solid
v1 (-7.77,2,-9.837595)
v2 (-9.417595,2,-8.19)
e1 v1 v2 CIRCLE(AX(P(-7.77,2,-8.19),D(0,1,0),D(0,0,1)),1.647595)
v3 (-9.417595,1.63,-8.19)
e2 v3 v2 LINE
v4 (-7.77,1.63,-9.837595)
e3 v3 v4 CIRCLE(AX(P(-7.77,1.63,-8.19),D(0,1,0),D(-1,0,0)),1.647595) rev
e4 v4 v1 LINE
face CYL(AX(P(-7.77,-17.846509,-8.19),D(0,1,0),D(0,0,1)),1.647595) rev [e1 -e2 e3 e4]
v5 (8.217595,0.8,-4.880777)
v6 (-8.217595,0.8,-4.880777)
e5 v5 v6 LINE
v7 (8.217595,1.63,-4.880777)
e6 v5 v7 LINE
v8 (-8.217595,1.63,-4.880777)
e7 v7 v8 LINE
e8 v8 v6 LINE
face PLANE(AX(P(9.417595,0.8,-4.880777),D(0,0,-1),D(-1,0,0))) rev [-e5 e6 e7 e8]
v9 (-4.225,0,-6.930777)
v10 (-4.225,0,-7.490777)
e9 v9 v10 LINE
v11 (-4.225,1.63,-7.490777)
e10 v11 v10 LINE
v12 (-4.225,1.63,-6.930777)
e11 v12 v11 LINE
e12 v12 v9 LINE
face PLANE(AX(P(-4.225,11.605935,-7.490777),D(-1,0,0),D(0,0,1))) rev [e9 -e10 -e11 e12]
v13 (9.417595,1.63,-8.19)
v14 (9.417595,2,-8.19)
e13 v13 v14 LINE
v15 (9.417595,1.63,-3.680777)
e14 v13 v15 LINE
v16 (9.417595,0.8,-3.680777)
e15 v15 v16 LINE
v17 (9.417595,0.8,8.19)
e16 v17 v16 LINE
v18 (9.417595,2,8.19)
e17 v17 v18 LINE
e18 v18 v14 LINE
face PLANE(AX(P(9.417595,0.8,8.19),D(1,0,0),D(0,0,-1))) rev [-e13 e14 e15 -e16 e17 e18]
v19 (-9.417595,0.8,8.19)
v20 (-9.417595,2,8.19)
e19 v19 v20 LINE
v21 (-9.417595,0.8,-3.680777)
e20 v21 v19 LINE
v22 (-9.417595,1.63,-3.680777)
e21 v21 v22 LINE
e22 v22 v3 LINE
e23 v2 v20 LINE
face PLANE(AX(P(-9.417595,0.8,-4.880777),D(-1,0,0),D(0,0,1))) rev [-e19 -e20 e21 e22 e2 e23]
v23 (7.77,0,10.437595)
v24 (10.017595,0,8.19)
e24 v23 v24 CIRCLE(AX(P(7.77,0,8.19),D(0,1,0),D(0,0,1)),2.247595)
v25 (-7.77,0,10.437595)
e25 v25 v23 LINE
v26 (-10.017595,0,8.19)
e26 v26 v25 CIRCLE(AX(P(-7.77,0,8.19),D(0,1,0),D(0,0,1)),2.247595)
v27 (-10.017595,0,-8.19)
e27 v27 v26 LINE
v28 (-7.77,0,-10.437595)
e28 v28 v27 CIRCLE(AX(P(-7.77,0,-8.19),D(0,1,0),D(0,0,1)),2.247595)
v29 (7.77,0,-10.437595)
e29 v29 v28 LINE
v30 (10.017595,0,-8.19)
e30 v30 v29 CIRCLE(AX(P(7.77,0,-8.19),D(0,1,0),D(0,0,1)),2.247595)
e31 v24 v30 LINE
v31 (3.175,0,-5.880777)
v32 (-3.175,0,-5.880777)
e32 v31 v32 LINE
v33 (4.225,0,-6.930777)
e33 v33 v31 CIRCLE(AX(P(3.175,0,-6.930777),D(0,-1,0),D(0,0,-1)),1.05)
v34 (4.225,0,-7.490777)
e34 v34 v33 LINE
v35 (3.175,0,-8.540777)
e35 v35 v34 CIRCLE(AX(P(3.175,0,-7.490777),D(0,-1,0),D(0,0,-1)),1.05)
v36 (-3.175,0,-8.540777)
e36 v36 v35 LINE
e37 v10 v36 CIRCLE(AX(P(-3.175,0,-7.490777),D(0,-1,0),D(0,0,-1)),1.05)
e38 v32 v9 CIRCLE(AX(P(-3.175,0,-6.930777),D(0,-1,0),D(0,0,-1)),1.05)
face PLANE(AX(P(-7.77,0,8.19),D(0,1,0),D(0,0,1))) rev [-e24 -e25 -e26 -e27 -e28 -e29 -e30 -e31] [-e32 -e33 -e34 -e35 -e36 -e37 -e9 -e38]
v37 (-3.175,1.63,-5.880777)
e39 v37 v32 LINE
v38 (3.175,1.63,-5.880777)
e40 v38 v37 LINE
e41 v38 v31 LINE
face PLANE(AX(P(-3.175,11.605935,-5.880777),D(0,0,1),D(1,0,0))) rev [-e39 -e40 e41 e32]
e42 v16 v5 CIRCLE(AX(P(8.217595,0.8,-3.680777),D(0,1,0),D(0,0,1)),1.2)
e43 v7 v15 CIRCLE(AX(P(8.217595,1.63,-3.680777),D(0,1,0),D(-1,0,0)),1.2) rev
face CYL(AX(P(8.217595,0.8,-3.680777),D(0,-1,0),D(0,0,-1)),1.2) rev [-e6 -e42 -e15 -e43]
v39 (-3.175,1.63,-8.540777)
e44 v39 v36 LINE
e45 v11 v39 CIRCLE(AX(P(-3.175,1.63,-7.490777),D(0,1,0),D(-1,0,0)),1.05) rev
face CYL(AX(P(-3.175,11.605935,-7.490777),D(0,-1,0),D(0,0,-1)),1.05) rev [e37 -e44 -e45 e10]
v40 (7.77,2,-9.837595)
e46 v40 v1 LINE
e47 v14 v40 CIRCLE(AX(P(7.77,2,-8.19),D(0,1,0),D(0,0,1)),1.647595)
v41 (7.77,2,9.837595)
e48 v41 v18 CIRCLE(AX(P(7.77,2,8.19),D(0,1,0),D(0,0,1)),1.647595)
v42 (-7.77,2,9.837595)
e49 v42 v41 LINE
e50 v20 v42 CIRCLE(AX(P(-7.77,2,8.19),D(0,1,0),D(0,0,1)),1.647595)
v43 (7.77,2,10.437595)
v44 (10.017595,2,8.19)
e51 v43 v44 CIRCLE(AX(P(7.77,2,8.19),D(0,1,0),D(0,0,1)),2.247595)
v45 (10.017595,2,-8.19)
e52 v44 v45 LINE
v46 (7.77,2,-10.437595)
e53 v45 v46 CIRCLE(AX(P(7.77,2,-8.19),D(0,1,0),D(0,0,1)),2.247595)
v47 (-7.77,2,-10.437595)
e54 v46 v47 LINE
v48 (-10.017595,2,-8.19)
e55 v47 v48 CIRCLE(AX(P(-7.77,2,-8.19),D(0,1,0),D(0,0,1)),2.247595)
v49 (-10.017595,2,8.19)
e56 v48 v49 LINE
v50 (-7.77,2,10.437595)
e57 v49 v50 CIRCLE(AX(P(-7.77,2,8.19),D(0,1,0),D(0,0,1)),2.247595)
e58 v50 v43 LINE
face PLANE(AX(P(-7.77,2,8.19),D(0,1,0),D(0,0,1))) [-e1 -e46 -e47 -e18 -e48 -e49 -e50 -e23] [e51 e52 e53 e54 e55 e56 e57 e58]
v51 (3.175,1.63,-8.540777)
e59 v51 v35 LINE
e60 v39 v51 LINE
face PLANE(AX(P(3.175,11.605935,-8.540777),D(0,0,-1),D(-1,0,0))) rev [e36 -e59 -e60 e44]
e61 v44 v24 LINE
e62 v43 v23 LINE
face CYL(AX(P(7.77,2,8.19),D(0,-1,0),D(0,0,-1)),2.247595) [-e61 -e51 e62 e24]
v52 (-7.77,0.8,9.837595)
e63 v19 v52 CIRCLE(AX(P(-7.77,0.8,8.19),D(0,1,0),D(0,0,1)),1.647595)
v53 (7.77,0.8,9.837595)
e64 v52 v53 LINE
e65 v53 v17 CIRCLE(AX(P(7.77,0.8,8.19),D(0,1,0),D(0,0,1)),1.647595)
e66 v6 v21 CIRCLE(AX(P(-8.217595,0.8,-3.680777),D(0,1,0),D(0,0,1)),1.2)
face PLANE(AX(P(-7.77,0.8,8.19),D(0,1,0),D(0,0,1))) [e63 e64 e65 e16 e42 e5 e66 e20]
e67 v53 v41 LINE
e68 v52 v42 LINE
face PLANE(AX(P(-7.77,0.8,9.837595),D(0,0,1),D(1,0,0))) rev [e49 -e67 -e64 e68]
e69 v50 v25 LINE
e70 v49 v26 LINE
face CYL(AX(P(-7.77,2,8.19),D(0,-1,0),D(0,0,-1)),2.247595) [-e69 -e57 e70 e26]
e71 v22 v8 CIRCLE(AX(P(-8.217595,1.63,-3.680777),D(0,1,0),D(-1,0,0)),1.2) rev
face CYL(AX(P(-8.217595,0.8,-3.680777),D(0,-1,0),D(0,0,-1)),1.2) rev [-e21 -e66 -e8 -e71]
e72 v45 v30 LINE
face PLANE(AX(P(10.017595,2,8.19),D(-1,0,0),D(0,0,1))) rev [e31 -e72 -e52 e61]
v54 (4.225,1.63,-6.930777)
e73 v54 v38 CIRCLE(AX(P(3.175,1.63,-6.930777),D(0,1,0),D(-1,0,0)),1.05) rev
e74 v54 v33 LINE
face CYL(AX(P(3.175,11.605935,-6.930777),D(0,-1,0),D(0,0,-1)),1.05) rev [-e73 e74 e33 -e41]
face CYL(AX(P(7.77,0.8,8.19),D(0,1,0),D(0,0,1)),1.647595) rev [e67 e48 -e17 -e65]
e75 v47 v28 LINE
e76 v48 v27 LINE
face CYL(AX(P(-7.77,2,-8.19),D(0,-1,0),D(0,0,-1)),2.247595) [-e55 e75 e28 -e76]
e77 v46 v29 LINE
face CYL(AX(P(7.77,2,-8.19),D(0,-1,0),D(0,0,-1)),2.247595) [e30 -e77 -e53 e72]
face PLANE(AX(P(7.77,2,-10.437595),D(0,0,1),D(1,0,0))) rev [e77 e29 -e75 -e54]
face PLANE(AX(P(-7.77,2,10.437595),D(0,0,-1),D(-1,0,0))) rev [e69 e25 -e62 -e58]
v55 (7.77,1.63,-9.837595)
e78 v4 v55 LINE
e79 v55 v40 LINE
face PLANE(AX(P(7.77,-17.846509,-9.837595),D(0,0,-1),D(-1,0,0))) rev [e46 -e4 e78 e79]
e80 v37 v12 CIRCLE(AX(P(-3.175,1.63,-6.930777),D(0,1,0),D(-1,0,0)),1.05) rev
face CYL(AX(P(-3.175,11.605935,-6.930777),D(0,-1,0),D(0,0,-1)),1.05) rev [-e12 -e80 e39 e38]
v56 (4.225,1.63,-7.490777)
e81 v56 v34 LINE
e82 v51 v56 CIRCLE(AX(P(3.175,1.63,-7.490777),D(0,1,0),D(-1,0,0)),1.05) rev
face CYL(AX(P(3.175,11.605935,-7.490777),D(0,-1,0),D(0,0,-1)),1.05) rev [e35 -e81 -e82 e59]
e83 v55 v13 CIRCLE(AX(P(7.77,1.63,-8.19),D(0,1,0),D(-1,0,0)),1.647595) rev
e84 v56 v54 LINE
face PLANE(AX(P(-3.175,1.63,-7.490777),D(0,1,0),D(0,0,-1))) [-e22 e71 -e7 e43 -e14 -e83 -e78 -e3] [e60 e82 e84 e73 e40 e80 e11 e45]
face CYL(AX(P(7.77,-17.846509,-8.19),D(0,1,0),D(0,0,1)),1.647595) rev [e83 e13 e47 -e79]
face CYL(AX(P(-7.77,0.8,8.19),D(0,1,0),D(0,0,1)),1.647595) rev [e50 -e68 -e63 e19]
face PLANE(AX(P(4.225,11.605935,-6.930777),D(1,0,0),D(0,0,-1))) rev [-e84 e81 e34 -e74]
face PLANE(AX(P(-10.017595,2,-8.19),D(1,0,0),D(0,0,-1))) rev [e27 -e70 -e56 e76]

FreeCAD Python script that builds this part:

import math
import FreeCAD as App
import Part
import Sketcher
from FreeCAD import Vector
Q = App.Units.Quantity


def edges_at(feature, points):
    """Names of the edges that pass closest to the given points."""
    edges = feature.Shape.Edges
    near = lambda p: min(range(len(edges)), key=lambda i: edges[i].distToShape(Part.Vertex(*p))[0])
    return sorted({f"Edge{near(p) + 1}" for p in points})

doc = App.newDocument("Part")
body = doc.addObject("PartDesign::Body", "Body")

# Sketch on XZ plane
sketch1 = doc.addObject("Sketcher::SketchObject", "Sketch")
body.addObject(sketch1)
sketch1.AttachmentSupport = (doc.XZ_Plane, [""])
sketch1.MapMode = "FlatFace"
sketch1.addGeometry(Part.LineSegment(Vector(-7.8, 10.4, 0), Vector(7.8, 10.4, 0)), False)
sketch1.addGeometry(Part.ArcOfCircle(Part.Circle(Vector(7.8, 8.2, 0), Vector(0, 0, 1), 2.2), math.radians(0), math.radians(90)), False)
sketch1.addGeometry(Part.LineSegment(Vector(10, 8.2, 0), Vector(10, -8.2, 0)), False)
sketch1.addGeometry(Part.ArcOfCircle(Part.Circle(Vector(7.8, -8.2, 0), Vector(0, 0, 1), 2.2), math.radians(-90), math.radians(0)), False)
sketch1.addGeometry(Part.LineSegment(Vector(7.8, -10.4, 0), Vector(-7.8, -10.4, 0)), False)
sketch1.addGeometry(Part.ArcOfCircle(Part.Circle(Vector(-7.8, -8.2, 0), Vector(0, 0, 1), 2.2), math.radians(-180), math.radians(-90)), False)
sketch1.addGeometry(Part.LineSegment(Vector(-10, -8.2, 0), Vector(-10, 8.2, 0)), False)
sketch1.addGeometry(Part.ArcOfCircle(Part.Circle(Vector(-7.8, 8.2, 0), Vector(0, 0, 1), 2.2), math.radians(90), math.radians(180)), False)
sketch1.addConstraint(Sketcher.Constraint("Tangent", 0, 2, 1, 2))
sketch1.addConstraint(Sketcher.Constraint("Tangent", 1, 1, 2, 1))
sketch1.addConstraint(Sketcher.Constraint("Tangent", 2, 2, 3, 2))
sketch1.addConstraint(Sketcher.Constraint("Tangent", 3, 1, 4, 1))
sketch1.addConstraint(Sketcher.Constraint("Tangent", 4, 2, 5, 2))
sketch1.addConstraint(Sketcher.Constraint("Tangent", 5, 1, 6, 1))
sketch1.addConstraint(Sketcher.Constraint("Tangent", 6, 2, 7, 2))
sketch1.addConstraint(Sketcher.Constraint("Tangent", 7, 1, 0, 1))
sketch1.addConstraint(Sketcher.Constraint("Horizontal", 0))
sketch1.addConstraint(Sketcher.Constraint("Vertical", 2))
sketch1.addConstraint(Sketcher.Constraint("Horizontal", 4))
sketch1.addConstraint(Sketcher.Constraint("Vertical", 6))
sketch1.addConstraint(Sketcher.Constraint("Equal", 1, 3))
sketch1.addConstraint(Sketcher.Constraint("Equal", 3, 5))
sketch1.addConstraint(Sketcher.Constraint("Equal", 5, 7))
sketch1.addConstraint(Sketcher.Constraint("Symmetric", 1, 3, 5, 3, -1, 1))
sketch1.addConstraint(Sketcher.Constraint("DistanceX", 0, 1, 0, 2, Q("15.54 mm")))
sketch1.addConstraint(Sketcher.Constraint("DistanceY", 2, 2, 2, 1, Q("16.38 mm")))
sketch1.addConstraint(Sketcher.Constraint("Radius", 1, Q("2.247595 mm")))
pad1 = doc.addObject("PartDesign::Pad", "Pad")
body.addObject(pad1)
pad1.Profile = sketch1
pad1.Length = 2
pad1.Reversed = True

# Sketch on XZ plane
sketch2 = doc.addObject("Sketcher::SketchObject", "Sketch001")
body.addObject(sketch2)
sketch2.AttachmentSupport = (doc.XZ_Plane, [""])
sketch2.MapMode = "FlatFace"
sketch2.AttachmentOffset = App.Placement(Vector(0, 0, -2), App.Rotation())
sketch2.addGeometry(Part.LineSegment(Vector(3.2, -8.9, 0), Vector(-3.2, -8.9, 0)), False)
sketch2.addGeometry(Part.ArcOfCircle(Part.Circle(Vector(-3.2, -7.5, 0), Vector(0, 0, 1), 1.4), math.radians(180), math.radians(270)), False)
sketch2.addGeometry(Part.LineSegment(Vector(-4.6, -7.5, 0), Vector(-4.6, -6.9, 0)), False)
sketch2.addGeometry(Part.ArcOfCircle(Part.Circle(Vector(-3.2, -6.9, 0), Vector(0, 0, 1), 1.5), math.radians(90), math.radians(180)), False)
sketch2.addGeometry(Part.LineSegment(Vector(-3.2, -5.5, 0), Vector(3.2, -5.5, 0)), False)
sketch2.addGeometry(Part.ArcOfCircle(Part.Circle(Vector(3.2, -6.9, 0), Vector(0, 0, 1), 1.5), math.radians(0), math.radians(90)), False)
sketch2.addGeometry(Part.LineSegment(Vector(4.6, -6.9, 0), Vector(4.6, -7.5, 0)), False)
sketch2.addGeometry(Part.ArcOfCircle(Part.Circle(Vector(3.2, -7.5, 0), Vector(0, 0, 1), 1.4), math.radians(-90), math.radians(0)), False)
sketch2.addConstraint(Sketcher.Constraint("Tangent", 0, 2, 1, 2))
sketch2.addConstraint(Sketcher.Constraint("Tangent", 1, 1, 2, 1))
sketch2.addConstraint(Sketcher.Constraint("Tangent", 2, 2, 3, 2))
sketch2.addConstraint(Sketcher.Constraint("Tangent", 3, 1, 4, 1))
sketch2.addConstraint(Sketcher.Constraint("Tangent", 4, 2, 5, 2))
sketch2.addConstraint(Sketcher.Constraint("Tangent", 5, 1, 6, 1))
sketch2.addConstraint(Sketcher.Constraint("Tangent", 6, 2, 7, 2))
sketch2.addConstraint(Sketcher.Constraint("Tangent", 7, 1, 0, 1))
sketch2.addConstraint(Sketcher.Constraint("Horizontal", 0))
sketch2.addConstraint(Sketcher.Constraint("Vertical", 2))
sketch2.addConstraint(Sketcher.Constraint("Horizontal", 4))
sketch2.addConstraint(Sketcher.Constraint("Vertical", 6))
sketch2.addConstraint(Sketcher.Constraint("Equal", 1, 3))
sketch2.addConstraint(Sketcher.Constraint("Equal", 3, 5))
sketch2.addConstraint(Sketcher.Constraint("Equal", 5, 7))
sketch2.addConstraint(Sketcher.Constraint("Radius", 1, Q("1.45 mm")))
sketch2.addConstraint(Sketcher.Constraint("DistanceX", 0, 2, 0, 1, Q("6.35 mm")))
sketch2.addConstraint(Sketcher.Constraint("DistanceY", 2, 1, 2, 2, Q("0.56 mm")))
sketch2.addConstraint(Sketcher.Constraint("DistanceX", 1, 3, -1, 1, Q("3.175 mm")))
sketch2.addConstraint(Sketcher.Constraint("DistanceY", 1, 3, -1, 1, Q("7.490777 mm")))
pocket1 = doc.addObject("PartDesign::Pocket", "Pocket")
body.addObject(pocket1)
pocket1.Profile = sketch2
pocket1.Type = "ThroughAll"
pocket1.Reversed = True

# Sketch on XZ plane
sketch3 = doc.addObject("Sketcher::SketchObject", "Sketch002")
body.addObject(sketch3)
sketch3.AttachmentSupport = (doc.XZ_Plane, [""])
sketch3.MapMode = "FlatFace"
sketch3.AttachmentOffset = App.Placement(Vector(0, 0, -1.63), App.Rotation())
sketch3.addGeometry(Part.LineSegment(Vector(-4.6, -6.9, 0), Vector(-4.6, -7.5, 0)), False)
sketch3.addGeometry(Part.ArcOfCircle(Part.Circle(Vector(-3.2, -7.5, 0), Vector(0, 0, 1), 1.4), math.radians(180), math.radians(270)), False)
sketch3.addGeometry(Part.LineSegment(Vector(-3.2, -8.9, 0), Vector(3.2, -8.9, 0)), False)
sketch3.addGeometry(Part.ArcOfCircle(Part.Circle(Vector(3.2, -7.5, 0), Vector(0, 0, 1), 1.4), math.radians(-90), math.radians(0)), False)
sketch3.addGeometry(Part.LineSegment(Vector(4.6, -7.5, 0), Vector(4.6, -6.9, 0)), False)
sketch3.addGeometry(Part.ArcOfCircle(Part.Circle(Vector(3.2, -6.9, 0), Vector(0, 0, 1), 1.5), math.radians(0), math.radians(90)), False)
sketch3.addGeometry(Part.LineSegment(Vector(3.2, -5.5, 0), Vector(-3.2, -5.5, 0)), False)
sketch3.addGeometry(Part.ArcOfCircle(Part.Circle(Vector(-3.2, -6.9, 0), Vector(0, 0, 1), 1.5), math.radians(90), math.radians(180)), False)
sketch3.addGeometry(Part.LineSegment(Vector(3.2, -8.5, 0), Vector(-3.2, -8.5, 0)), False)
sketch3.addGeometry(Part.ArcOfCircle(Part.Circle(Vector(-3.2, -7.5, 0), Vector(0, 0, 1), 1), math.radians(180), math.radians(270)), False)
sketch3.addGeometry(Part.LineSegment(Vector(-4.2, -7.5, 0), Vector(-4.2, -6.9, 0)), False)
sketch3.addGeometry(Part.ArcOfCircle(Part.Circle(Vector(-3.2, -6.9, 0), Vector(0, 0, 1), 1.1), math.radians(90), math.radians(180)), False)
sketch3.addGeometry(Part.LineSegment(Vector(-3.2, -5.9, 0), Vector(3.2, -5.9, 0)), False)
sketch3.addGeometry(Part.ArcOfCircle(Part.Circle(Vector(3.2, -6.9, 0), Vector(0, 0, 1), 1.1), math.radians(0), math.radians(90)), False)
sketch3.addGeometry(Part.LineSegment(Vector(4.2, -6.9, 0), Vector(4.2, -7.5, 0)), False)
sketch3.addGeometry(Part.ArcOfCircle(Part.Circle(Vector(3.2, -7.5, 0), Vector(0, 0, 1), 1), math.radians(-90), math.radians(0)), False)
sketch3.addConstraint(Sketcher.Constraint("Tangent", 0, 2, 1, 1))
sketch3.addConstraint(Sketcher.Constraint("Tangent", 1, 2, 2, 1))
sketch3.addConstraint(Sketcher.Constraint("Tangent", 2, 2, 3, 1))
sketch3.addConstraint(Sketcher.Constraint("Tangent", 3, 2, 4, 1))
sketch3.addConstraint(Sketcher.Constraint("Tangent", 4, 2, 5, 1))
sketch3.addConstraint(Sketcher.Constraint("Tangent", 5, 2, 6, 1))
sketch3.addConstraint(Sketcher.Constraint("Tangent", 6, 2, 7, 1))
sketch3.addConstraint(Sketcher.Constraint("Tangent", 7, 2, 0, 1))
sketch3.addConstraint(Sketcher.Constraint("Tangent", 8, 2, 9, 2))
sketch3.addConstraint(Sketcher.Constraint("Tangent", 9, 1, 10, 1))
sketch3.addConstraint(Sketcher.Constraint("Tangent", 10, 2, 11, 2))
sketch3.addConstraint(Sketcher.Constraint("Tangent", 11, 1, 12, 1))
sketch3.addConstraint(Sketcher.Constraint("Tangent", 12, 2, 13, 2))
sketch3.addConstraint(Sketcher.Constraint("Tangent", 13, 1, 14, 1))
sketch3.addConstraint(Sketcher.Constraint("Tangent", 14, 2, 15, 2))
sketch3.addConstraint(Sketcher.Constraint("Tangent", 15, 1, 8, 1))
sketch3.addConstraint(Sketcher.Constraint("Vertical", 0))
sketch3.addConstraint(Sketcher.Constraint("Horizontal", 2))
sketch3.addConstraint(Sketcher.Constraint("Vertical", 4))
sketch3.addConstraint(Sketcher.Constraint("Horizontal", 6))
sketch3.addConstraint(Sketcher.Constraint("Horizontal", 8))
sketch3.addConstraint(Sketcher.Constraint("Vertical", 10))
sketch3.addConstraint(Sketcher.Constraint("Horizontal", 12))
sketch3.addConstraint(Sketcher.Constraint("Vertical", 14))
sketch3.addConstraint(Sketcher.Constraint("Coincident", 9, 3, 1, 3))
sketch3.addConstraint(Sketcher.Constraint("Coincident", 11, 3, 7, 3))
sketch3.addConstraint(Sketcher.Constraint("Coincident", 13, 3, 5, 3))
sketch3.addConstraint(Sketcher.Constraint("Equal", 1, 3))
sketch3.addConstraint(Sketcher.Constraint("Equal", 3, 5))
sketch3.addConstraint(Sketcher.Constraint("Equal", 5, 7))
sketch3.addConstraint(Sketcher.Constraint("Equal", 13, 15))
sketch3.addConstraint(Sketcher.Constraint("Radius", 1, Q("1.45 mm")))
sketch3.addConstraint(Sketcher.Constraint("Radius", 9, Q("1.05 mm")))
sketch3.addConstraint(Sketcher.Constraint("DistanceX", 2, 1, 2, 2, Q("6.35 mm")))
sketch3.addConstraint(Sketcher.Constraint("DistanceY", 0, 2, 0, 1, Q("0.56 mm")))
sketch3.addConstraint(Sketcher.Constraint("DistanceX", 1, 3, -1, 1, Q("3.175 mm")))
sketch3.addConstraint(Sketcher.Constraint("DistanceY", 1, 3, -1, 1, Q("7.490777 mm")))
pad2 = doc.addObject("PartDesign::Pad", "Pad001")
body.addObject(pad2)
pad2.Profile = sketch3
pad2.Length = 1.63

# Sketch on XZ plane
sketch4 = doc.addObject("Sketcher::SketchObject", "Sketch003")
body.addObject(sketch4)
sketch4.AttachmentSupport = (doc.XZ_Plane, [""])
sketch4.MapMode = "FlatFace"
sketch4.AttachmentOffset = App.Placement(Vector(0, 0, -2), App.Rotation())
sketch4.addGeometry(Part.LineSegment(Vector(9.4, -4.9, 0), Vector(-9.4, -4.9, 0)), False)
sketch4.addGeometry(Part.LineSegment(Vector(-9.4, -4.9, 0), Vector(-9.4, 8.2, 0)), False)
sketch4.addGeometry(Part.ArcOfCircle(Part.Circle(Vector(-7.8, 8.2, 0), Vector(0, 0, 1), 1.6), math.radians(90), math.radians(180)), False)
sketch4.addGeometry(Part.LineSegment(Vector(-7.8, 9.8, 0), Vector(7.8, 9.8, 0)), False)
sketch4.addGeometry(Part.ArcOfCircle(Part.Circle(Vector(7.8, 8.2, 0), Vector(0, 0, 1), 1.6), math.radians(0), math.radians(90)), False)
sketch4.addGeometry(Part.LineSegment(Vector(9.4, 8.2, 0), Vector(9.4, -4.9, 0)), False)
sketch4.addConstraint(Sketcher.Constraint("Coincident", 0, 2, 1, 1))
sketch4.addConstraint(Sketcher.Constraint("Tangent", 1, 2, 2, 2))
sketch4.addConstraint(Sketcher.Constraint("Tangent", 2, 1, 3, 1))
sketch4.addConstraint(Sketcher.Constraint("Tangent", 3, 2, 4, 2))
sketch4.addConstraint(Sketcher.Constraint("Tangent", 4, 1, 5, 1))
sketch4.addConstraint(Sketcher.Constraint("Coincident", 5, 2, 0, 1))
sketch4.addConstraint(Sketcher.Constraint("Horizontal", 0))
sketch4.addConstraint(Sketcher.Constraint("Vertical", 1))
sketch4.addConstraint(Sketcher.Constraint("Horizontal", 3))
sketch4.addConstraint(Sketcher.Constraint("Vertical", 5))
sketch4.addConstraint(Sketcher.Constraint("Equal", 2, 4))
sketch4.addConstraint(Sketcher.Constraint("DistanceX", 3, 1, 3, 2, Q("15.54 mm")))
sketch4.addConstraint(Sketcher.Constraint("DistanceX", 2, 3, -1, 1, Q("7.77 mm")))
sketch4.addConstraint(Sketcher.Constraint("DistanceY", -1, 1, 2, 3, Q("8.19 mm")))
sketch4.addConstraint(Sketcher.Constraint("Radius", 2, Q("1.647595 mm")))
sketch4.addConstraint(Sketcher.Constraint("DistanceY", 1, 1, 1, 2, Q("13.070777 mm")))
pocket2 = doc.addObject("PartDesign::Pocket", "Pocket001")
body.addObject(pocket2)
pocket2.Profile = sketch4
pocket2.Length = 1.2
pocket2.Reversed = True

# Sketch on XZ plane
sketch5 = doc.addObject("Sketcher::SketchObject", "Sketch004")
body.addObject(sketch5)
sketch5.AttachmentSupport = (doc.XZ_Plane, [""])
sketch5.MapMode = "FlatFace"
sketch5.AttachmentOffset = App.Placement(Vector(0, 0, -2), App.Rotation())
sketch5.addGeometry(Part.LineSegment(Vector(9.4, -4.9, 0), Vector(9.4, -8.2, 0)), False)
sketch5.addGeometry(Part.ArcOfCircle(Part.Circle(Vector(7.8, -8.2, 0), Vector(0, 0, 1), 1.6), math.radians(-90), math.radians(0)), False)
sketch5.addGeometry(Part.LineSegment(Vector(7.8, -9.8, 0), Vector(-7.8, -9.8, 0)), False)
sketch5.addGeometry(Part.ArcOfCircle(Part.Circle(Vector(-7.8, -8.2, 0), Vector(0, 0, 1), 1.6), math.radians(-180), math.radians(-90)), False)
sketch5.addGeometry(Part.LineSegment(Vector(-9.4, -8.2, 0), Vector(-9.4, -4.9, 0)), False)
sketch5.addGeometry(Part.LineSegment(Vector(-9.4, -4.9, 0), Vector(9.4, -4.9, 0)), False)
sketch5.addConstraint(Sketcher.Constraint("Tangent", 0, 2, 1, 2))
sketch5.addConstraint(Sketcher.Constraint("Tangent", 1, 1, 2, 1))
sketch5.addConstraint(Sketcher.Constraint("Tangent", 2, 2, 3, 2))
sketch5.addConstraint(Sketcher.Constraint("Tangent", 3, 1, 4, 1))
sketch5.addConstraint(Sketcher.Constraint("Coincident", 4, 2, 5, 1))
sketch5.addConstraint(Sketcher.Constraint("Coincident", 5, 2, 0, 1))
sketch5.addConstraint(Sketcher.Constraint("Vertical", 0))
sketch5.addConstraint(Sketcher.Constraint("Horizontal", 2))
sketch5.addConstraint(Sketcher.Constraint("Vertical", 4))
sketch5.addConstraint(Sketcher.Constraint("Horizontal", 5))
sketch5.addConstraint(Sketcher.Constraint("Equal", 1, 3))
sketch5.addConstraint(Sketcher.Constraint("DistanceX", 2, 2, 2, 1, Q("15.54 mm")))
sketch5.addConstraint(Sketcher.Constraint("DistanceX", -1, 1, 1, 3, Q("7.77 mm")))
sketch5.addConstraint(Sketcher.Constraint("DistanceY", 1, 3, -1, 1, Q("8.19 mm")))
sketch5.addConstraint(Sketcher.Constraint("Radius", 1, Q("1.647595 mm")))
sketch5.addConstraint(Sketcher.Constraint("DistanceY", 0, 2, 0, 1, Q("3.309223 mm")))
pocket3 = doc.addObject("PartDesign::Pocket", "Pocket002")
body.addObject(pocket3)
pocket3.Profile = sketch5
pocket3.Length = 0.37
pocket3.Reversed = True
doc.recompute()

fillet = doc.addObject("PartDesign::Fillet", "Fillet")
body.addObject(fillet)
fillet.Base = (pocket3, edges_at(pocket3, [(9.418, 1.215, -4.881), (-9.418, 1.215, -4.881)]))
fillet.Radius = 1.2

doc.recompute()
